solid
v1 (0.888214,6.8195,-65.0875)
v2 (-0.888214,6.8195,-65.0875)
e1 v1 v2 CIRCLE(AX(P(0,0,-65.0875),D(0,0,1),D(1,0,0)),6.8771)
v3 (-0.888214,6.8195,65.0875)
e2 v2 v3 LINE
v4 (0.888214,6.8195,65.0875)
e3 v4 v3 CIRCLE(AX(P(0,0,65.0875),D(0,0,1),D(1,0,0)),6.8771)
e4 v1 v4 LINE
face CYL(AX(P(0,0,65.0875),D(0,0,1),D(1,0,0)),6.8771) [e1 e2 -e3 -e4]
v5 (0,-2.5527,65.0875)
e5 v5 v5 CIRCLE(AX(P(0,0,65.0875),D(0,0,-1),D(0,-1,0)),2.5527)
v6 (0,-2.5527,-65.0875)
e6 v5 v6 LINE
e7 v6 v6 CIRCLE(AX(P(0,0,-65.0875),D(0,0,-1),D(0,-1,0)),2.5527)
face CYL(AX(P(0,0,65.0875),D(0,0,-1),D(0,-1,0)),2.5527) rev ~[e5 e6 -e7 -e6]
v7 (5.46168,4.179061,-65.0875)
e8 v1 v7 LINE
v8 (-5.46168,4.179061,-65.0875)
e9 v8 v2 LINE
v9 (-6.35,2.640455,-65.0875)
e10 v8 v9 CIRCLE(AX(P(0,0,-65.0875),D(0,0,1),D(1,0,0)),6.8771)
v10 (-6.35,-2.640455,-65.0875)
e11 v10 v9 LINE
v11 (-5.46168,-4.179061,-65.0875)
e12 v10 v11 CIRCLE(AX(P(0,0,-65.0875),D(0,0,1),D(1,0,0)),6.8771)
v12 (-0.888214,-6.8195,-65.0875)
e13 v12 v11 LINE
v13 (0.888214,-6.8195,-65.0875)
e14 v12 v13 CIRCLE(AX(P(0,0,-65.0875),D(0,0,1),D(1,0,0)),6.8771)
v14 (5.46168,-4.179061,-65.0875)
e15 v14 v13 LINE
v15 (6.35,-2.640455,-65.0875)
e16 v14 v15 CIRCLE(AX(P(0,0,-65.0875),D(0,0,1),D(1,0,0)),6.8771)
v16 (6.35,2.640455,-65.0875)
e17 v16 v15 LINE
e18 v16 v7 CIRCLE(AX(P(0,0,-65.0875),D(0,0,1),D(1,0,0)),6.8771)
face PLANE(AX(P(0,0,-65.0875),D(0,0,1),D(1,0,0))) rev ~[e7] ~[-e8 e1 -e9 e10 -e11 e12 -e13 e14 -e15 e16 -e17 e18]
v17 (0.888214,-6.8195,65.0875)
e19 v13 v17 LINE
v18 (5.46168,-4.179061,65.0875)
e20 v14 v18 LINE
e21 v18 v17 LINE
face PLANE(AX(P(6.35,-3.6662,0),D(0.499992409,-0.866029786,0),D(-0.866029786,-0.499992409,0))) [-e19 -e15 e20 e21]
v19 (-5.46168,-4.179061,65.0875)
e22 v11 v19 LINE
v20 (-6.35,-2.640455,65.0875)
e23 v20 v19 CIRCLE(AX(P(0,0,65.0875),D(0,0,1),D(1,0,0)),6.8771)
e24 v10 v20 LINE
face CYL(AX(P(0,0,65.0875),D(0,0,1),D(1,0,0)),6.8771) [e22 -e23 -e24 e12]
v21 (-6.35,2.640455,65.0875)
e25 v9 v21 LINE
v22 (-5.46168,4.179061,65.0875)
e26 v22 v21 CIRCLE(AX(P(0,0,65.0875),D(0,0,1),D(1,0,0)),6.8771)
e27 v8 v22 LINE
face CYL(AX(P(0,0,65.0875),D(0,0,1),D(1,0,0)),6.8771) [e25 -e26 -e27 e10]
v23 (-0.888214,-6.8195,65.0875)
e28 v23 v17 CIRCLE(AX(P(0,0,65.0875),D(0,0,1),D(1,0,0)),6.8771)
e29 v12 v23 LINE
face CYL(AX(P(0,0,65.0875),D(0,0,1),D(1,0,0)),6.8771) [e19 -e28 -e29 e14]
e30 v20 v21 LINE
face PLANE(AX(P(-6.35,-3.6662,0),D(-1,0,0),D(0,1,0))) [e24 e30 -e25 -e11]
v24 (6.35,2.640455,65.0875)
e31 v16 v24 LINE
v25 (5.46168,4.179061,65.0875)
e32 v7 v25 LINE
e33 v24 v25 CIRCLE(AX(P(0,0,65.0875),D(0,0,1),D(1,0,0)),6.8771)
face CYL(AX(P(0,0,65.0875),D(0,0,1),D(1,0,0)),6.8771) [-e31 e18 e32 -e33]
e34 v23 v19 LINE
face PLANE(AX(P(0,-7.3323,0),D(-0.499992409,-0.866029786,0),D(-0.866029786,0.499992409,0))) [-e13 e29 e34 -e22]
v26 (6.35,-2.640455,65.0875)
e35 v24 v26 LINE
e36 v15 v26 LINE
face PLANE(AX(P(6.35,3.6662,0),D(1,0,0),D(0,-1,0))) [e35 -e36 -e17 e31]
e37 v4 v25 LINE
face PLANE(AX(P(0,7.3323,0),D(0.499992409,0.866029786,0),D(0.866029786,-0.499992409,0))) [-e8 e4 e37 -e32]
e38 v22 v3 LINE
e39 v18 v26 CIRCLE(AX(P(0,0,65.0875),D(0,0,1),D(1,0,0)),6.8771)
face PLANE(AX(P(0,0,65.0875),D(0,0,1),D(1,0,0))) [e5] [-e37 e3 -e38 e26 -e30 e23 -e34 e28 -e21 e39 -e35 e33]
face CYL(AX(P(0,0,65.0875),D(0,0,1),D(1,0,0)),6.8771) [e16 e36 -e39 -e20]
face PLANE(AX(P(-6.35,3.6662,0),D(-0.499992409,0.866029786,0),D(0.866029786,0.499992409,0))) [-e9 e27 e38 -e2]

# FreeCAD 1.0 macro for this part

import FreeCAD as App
import Part
import Sketcher

V = App.Vector
Q = App.Units.Quantity


def add_polygon(sketch, points):
    """Adds a closed chain of lines whose ends are joined by coincident constraints."""
    first, n = sketch.GeometryCount, len(points)
    for a, b in zip(points, points[1:] + points[:1]):
        sketch.addGeometry(Part.LineSegment(App.Vector(*a, 0), App.Vector(*b, 0)), False)
    for i in range(n):
        sketch.addConstraint(Sketcher.Constraint("Coincident", first + i, 2, first + (i + 1) % n, 1))

doc = App.newDocument("Part")
body = doc.addObject("PartDesign::Body", "Body")

# Sketch on XY plane
sketch1 = body.newObject("Sketcher::SketchObject", "Sketch")
sketch1.AttachmentSupport = (doc.getObject("XY_Plane"), [""])
sketch1.MapMode = "FlatFace"
add_polygon(sketch1, [(-6, 4), (-6, -4), (0, -7), (6, -4), (6, 4), (0, 7)])  # lines 0-5
sketch1.addConstraint(Sketcher.Constraint("Vertical", 0))
sketch1.addConstraint(Sketcher.Constraint("Vertical", 3))
sketch1.addConstraint(Sketcher.Constraint("Symmetric", 0, 2, 3, 2, -1, 1))
sketch1.addConstraint(Sketcher.Constraint("Symmetric", 1, 2, 4, 2, -1, 1))
sketch1.addConstraint(Sketcher.Constraint("PointOnObject", 1, 2, -2))
sketch1.addConstraint(Sketcher.Constraint("Parallel", 2, 5))
sketch1.addConstraint(Sketcher.Constraint("Horizontal", 0, 2, 2, 2))
sketch1.addConstraint(Sketcher.Constraint("DistanceX", 0, 2, 2, 2, Q("0.5 in")))
sketch1.addConstraint(Sketcher.Constraint("Angle", 1, Q("-29.9995 deg")))
sketch1.addConstraint(Sketcher.Constraint("DistanceY", 1, 2, 3, 2, Q("0.433 in")))
pad1 = body.newObject("PartDesign::Pad", "Pad")
pad1.Profile = sketch1
pad1.Length = Q("5.125 in")
pad1.Midplane = True

# Sketch on XY plane
sketch2 = body.newObject("Sketcher::SketchObject", "Sketch001")
sketch2.AttachmentSupport = (doc.getObject("XY_Plane"), [""])
sketch2.MapMode = "FlatFace"
sketch2.AttachmentOffset = App.Placement(V(0, 0, 2.5625 * 25.4), App.Rotation())
sketch2.addGeometry(Part.Circle(V(0, 0, 0), V(0, 0, 1), 2.6), False)
sketch2.addConstraint(Sketcher.Constraint("Coincident", 0, 3, -1, 1))
sketch2.addConstraint(Sketcher.Constraint("Diameter", 0, Q("0.201 in")))
doc.recompute()
hole = body.newObject("PartDesign::Hole", "Hole")
hole.Profile = sketch2
hole.ThreadType = "None"
hole.Diameter = Q("0.201 in")
hole.DepthType = "ThroughAll"

# Sketch on XY plane
sketch3 = body.newObject("Sketcher::SketchObject", "Sketch002")
sketch3.AttachmentSupport = (doc.getObject("XY_Plane"), [""])
sketch3.MapMode = "FlatFace"
sketch3.AttachmentOffset = App.Placement(V(0, 0, 2.5625 * 25.4), App.Rotation())
sketch3.addGeometry(Part.Circle(V(0, 0, 0), V(0, 0, 1), 9), False)
sketch3.addGeometry(Part.Circle(V(0, 0, 0), V(0, 0, 1), 7), False)
sketch3.addConstraint(Sketcher.Constraint("Coincident", 0, 3, -1, 1))
sketch3.addConstraint(Sketcher.Constraint("Coincident", 1, 3, -1, 1))
sketch3.addConstraint(Sketcher.Constraint("Diameter", 0, Q("0.7 in")))
sketch3.addConstraint(Sketcher.Constraint("Diameter", 1, Q("0.5415 in")))
pocket1 = body.newObject("PartDesign::Pocket", "Pocket")
pocket1.Profile = sketch3
pocket1.Type = "ThroughAll"

doc.recompute()
